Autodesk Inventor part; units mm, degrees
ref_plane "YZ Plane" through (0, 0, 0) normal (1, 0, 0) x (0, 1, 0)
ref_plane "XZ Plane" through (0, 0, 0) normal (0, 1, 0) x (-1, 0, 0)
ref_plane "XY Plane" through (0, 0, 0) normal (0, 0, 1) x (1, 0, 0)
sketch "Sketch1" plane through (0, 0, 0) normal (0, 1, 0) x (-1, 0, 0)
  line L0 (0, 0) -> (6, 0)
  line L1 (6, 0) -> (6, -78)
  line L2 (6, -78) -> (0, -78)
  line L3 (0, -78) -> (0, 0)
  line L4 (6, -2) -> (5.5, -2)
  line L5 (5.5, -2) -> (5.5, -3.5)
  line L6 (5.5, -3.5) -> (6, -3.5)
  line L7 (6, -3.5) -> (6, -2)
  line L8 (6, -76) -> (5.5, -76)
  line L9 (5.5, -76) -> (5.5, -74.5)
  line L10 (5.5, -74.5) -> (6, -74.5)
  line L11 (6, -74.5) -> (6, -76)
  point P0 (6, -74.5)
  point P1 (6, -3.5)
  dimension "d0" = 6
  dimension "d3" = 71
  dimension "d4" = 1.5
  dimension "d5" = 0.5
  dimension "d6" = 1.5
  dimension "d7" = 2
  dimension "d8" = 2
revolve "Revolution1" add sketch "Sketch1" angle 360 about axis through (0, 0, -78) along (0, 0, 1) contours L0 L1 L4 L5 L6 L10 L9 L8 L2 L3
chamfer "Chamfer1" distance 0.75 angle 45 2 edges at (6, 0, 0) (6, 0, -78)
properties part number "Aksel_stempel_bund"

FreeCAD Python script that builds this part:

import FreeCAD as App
import Part
import Sketcher
from FreeCAD import Vector


def edges_at(feature, points):
    """Names of the edges that pass closest to the given points."""
    edges = feature.Shape.Edges
    near = lambda p: min(range(len(edges)), key=lambda i: edges[i].distToShape(Part.Vertex(*p))[0])
    return sorted({f"Edge{near(p) + 1}" for p in points})

doc = App.newDocument("Part")
body = doc.addObject("PartDesign::Body", "Body")

# Sketch on XZ plane
sketch1 = body.newObject("Sketcher::SketchObject", "Sketch")
sketch1.AttachmentSupport = (doc.getObject("XZ_Plane"), [""])
sketch1.MapMode = "FlatFace"
sketch1.addGeometry(Part.LineSegment(Vector(-6, 0, 0), Vector(0, 0, 0)), False)
sketch1.addGeometry(Part.LineSegment(Vector(0, 0, 0), Vector(0, -78, 0)), False)
sketch1.addGeometry(Part.LineSegment(Vector(0, -78, 0), Vector(-6, -78, 0)), False)
sketch1.addGeometry(Part.LineSegment(Vector(-6, -78, 0), Vector(-6, -76, 0)), False)
sketch1.addGeometry(Part.LineSegment(Vector(-6, -76, 0), Vector(-5.5, -76, 0)), False)
sketch1.addGeometry(Part.LineSegment(Vector(-5.5, -76, 0), Vector(-5.5, -74.5, 0)), False)
sketch1.addGeometry(Part.LineSegment(Vector(-5.5, -74.5, 0), Vector(-6, -74.5, 0)), False)
sketch1.addGeometry(Part.LineSegment(Vector(-6, -74.5, 0), Vector(-6, -3.5, 0)), False)
sketch1.addGeometry(Part.LineSegment(Vector(-6, -3.5, 0), Vector(-5.5, -3.5, 0)), False)
sketch1.addGeometry(Part.LineSegment(Vector(-5.5, -3.5, 0), Vector(-5.5, -2, 0)), False)
sketch1.addGeometry(Part.LineSegment(Vector(-5.5, -2, 0), Vector(-6, -2, 0)), False)
sketch1.addGeometry(Part.LineSegment(Vector(-6, -2, 0), Vector(-6, 0, 0)), False)
sketch1.addConstraint(Sketcher.Constraint("Coincident", 0, 2, 1, 1))
sketch1.addConstraint(Sketcher.Constraint("Coincident", 1, 2, 2, 1))
sketch1.addConstraint(Sketcher.Constraint("Coincident", 2, 2, 3, 1))
sketch1.addConstraint(Sketcher.Constraint("Coincident", 3, 2, 4, 1))
sketch1.addConstraint(Sketcher.Constraint("Coincident", 4, 2, 5, 1))
sketch1.addConstraint(Sketcher.Constraint("Coincident", 5, 2, 6, 1))
sketch1.addConstraint(Sketcher.Constraint("Coincident", 6, 2, 7, 1))
sketch1.addConstraint(Sketcher.Constraint("Coincident", 7, 2, 8, 1))
sketch1.addConstraint(Sketcher.Constraint("Coincident", 8, 2, 9, 1))
sketch1.addConstraint(Sketcher.Constraint("Coincident", 9, 2, 10, 1))
sketch1.addConstraint(Sketcher.Constraint("Coincident", 10, 2, 11, 1))
sketch1.addConstraint(Sketcher.Constraint("Coincident", 11, 2, 0, 1))
sketch1.addConstraint(Sketcher.Constraint("Horizontal", 0))
sketch1.addConstraint(Sketcher.Constraint("Vertical", 1))
sketch1.addConstraint(Sketcher.Constraint("Horizontal", 2))
sketch1.addConstraint(Sketcher.Constraint("Vertical", 3))
sketch1.addConstraint(Sketcher.Constraint("Horizontal", 4))
sketch1.addConstraint(Sketcher.Constraint("Vertical", 5))
sketch1.addConstraint(Sketcher.Constraint("Horizontal", 6))
sketch1.addConstraint(Sketcher.Constraint("Vertical", 7))
sketch1.addConstraint(Sketcher.Constraint("Horizontal", 8))
sketch1.addConstraint(Sketcher.Constraint("Vertical", 9))
sketch1.addConstraint(Sketcher.Constraint("Horizontal", 10))
sketch1.addConstraint(Sketcher.Constraint("Vertical", 11))
sketch1.addConstraint(Sketcher.Constraint("Coincident", 0, 2, -1, 1))
sketch1.addConstraint(Sketcher.Constraint("Vertical", 3, 2, 6, 2))
sketch1.addConstraint(Sketcher.Constraint("Vertical", 5, 2, 8, 2))
sketch1.addConstraint(Sketcher.Constraint("Vertical", 7, 2, 10, 2))
sketch1.addConstraint(Sketcher.Constraint("Equal", 5, 9))
sketch1.addConstraint(Sketcher.Constraint("Equal", 3, 11))
sketch1.addConstraint(Sketcher.Constraint("DistanceX", 0, 1, 0, 2, 6.0))
sketch1.addConstraint(Sketcher.Constraint("DistanceY", 3, 1, 3, 2, 2.0))
sketch1.addConstraint(Sketcher.Constraint("DistanceY", 7, 1, 7, 2, 71.0))
sketch1.addConstraint(Sketcher.Constraint("DistanceX", 4, 1, 4, 2, 0.5))
sketch1.addConstraint(Sketcher.Constraint("DistanceY", 5, 1, 5, 2, 1.5))
revolution = body.newObject("PartDesign::Revolution", "Revolution")
revolution.Profile = sketch1
revolution.ReferenceAxis = (sketch1, ["V_Axis"])
revolution.Angle = 360
doc.recompute()

chamfer = body.newObject("PartDesign::Chamfer", "Chamfer")
chamfer.Base = (revolution, edges_at(revolution, [(6, 0, 0), (6, 0, -78)]))
chamfer.Size = 0.75

doc.recompute()
